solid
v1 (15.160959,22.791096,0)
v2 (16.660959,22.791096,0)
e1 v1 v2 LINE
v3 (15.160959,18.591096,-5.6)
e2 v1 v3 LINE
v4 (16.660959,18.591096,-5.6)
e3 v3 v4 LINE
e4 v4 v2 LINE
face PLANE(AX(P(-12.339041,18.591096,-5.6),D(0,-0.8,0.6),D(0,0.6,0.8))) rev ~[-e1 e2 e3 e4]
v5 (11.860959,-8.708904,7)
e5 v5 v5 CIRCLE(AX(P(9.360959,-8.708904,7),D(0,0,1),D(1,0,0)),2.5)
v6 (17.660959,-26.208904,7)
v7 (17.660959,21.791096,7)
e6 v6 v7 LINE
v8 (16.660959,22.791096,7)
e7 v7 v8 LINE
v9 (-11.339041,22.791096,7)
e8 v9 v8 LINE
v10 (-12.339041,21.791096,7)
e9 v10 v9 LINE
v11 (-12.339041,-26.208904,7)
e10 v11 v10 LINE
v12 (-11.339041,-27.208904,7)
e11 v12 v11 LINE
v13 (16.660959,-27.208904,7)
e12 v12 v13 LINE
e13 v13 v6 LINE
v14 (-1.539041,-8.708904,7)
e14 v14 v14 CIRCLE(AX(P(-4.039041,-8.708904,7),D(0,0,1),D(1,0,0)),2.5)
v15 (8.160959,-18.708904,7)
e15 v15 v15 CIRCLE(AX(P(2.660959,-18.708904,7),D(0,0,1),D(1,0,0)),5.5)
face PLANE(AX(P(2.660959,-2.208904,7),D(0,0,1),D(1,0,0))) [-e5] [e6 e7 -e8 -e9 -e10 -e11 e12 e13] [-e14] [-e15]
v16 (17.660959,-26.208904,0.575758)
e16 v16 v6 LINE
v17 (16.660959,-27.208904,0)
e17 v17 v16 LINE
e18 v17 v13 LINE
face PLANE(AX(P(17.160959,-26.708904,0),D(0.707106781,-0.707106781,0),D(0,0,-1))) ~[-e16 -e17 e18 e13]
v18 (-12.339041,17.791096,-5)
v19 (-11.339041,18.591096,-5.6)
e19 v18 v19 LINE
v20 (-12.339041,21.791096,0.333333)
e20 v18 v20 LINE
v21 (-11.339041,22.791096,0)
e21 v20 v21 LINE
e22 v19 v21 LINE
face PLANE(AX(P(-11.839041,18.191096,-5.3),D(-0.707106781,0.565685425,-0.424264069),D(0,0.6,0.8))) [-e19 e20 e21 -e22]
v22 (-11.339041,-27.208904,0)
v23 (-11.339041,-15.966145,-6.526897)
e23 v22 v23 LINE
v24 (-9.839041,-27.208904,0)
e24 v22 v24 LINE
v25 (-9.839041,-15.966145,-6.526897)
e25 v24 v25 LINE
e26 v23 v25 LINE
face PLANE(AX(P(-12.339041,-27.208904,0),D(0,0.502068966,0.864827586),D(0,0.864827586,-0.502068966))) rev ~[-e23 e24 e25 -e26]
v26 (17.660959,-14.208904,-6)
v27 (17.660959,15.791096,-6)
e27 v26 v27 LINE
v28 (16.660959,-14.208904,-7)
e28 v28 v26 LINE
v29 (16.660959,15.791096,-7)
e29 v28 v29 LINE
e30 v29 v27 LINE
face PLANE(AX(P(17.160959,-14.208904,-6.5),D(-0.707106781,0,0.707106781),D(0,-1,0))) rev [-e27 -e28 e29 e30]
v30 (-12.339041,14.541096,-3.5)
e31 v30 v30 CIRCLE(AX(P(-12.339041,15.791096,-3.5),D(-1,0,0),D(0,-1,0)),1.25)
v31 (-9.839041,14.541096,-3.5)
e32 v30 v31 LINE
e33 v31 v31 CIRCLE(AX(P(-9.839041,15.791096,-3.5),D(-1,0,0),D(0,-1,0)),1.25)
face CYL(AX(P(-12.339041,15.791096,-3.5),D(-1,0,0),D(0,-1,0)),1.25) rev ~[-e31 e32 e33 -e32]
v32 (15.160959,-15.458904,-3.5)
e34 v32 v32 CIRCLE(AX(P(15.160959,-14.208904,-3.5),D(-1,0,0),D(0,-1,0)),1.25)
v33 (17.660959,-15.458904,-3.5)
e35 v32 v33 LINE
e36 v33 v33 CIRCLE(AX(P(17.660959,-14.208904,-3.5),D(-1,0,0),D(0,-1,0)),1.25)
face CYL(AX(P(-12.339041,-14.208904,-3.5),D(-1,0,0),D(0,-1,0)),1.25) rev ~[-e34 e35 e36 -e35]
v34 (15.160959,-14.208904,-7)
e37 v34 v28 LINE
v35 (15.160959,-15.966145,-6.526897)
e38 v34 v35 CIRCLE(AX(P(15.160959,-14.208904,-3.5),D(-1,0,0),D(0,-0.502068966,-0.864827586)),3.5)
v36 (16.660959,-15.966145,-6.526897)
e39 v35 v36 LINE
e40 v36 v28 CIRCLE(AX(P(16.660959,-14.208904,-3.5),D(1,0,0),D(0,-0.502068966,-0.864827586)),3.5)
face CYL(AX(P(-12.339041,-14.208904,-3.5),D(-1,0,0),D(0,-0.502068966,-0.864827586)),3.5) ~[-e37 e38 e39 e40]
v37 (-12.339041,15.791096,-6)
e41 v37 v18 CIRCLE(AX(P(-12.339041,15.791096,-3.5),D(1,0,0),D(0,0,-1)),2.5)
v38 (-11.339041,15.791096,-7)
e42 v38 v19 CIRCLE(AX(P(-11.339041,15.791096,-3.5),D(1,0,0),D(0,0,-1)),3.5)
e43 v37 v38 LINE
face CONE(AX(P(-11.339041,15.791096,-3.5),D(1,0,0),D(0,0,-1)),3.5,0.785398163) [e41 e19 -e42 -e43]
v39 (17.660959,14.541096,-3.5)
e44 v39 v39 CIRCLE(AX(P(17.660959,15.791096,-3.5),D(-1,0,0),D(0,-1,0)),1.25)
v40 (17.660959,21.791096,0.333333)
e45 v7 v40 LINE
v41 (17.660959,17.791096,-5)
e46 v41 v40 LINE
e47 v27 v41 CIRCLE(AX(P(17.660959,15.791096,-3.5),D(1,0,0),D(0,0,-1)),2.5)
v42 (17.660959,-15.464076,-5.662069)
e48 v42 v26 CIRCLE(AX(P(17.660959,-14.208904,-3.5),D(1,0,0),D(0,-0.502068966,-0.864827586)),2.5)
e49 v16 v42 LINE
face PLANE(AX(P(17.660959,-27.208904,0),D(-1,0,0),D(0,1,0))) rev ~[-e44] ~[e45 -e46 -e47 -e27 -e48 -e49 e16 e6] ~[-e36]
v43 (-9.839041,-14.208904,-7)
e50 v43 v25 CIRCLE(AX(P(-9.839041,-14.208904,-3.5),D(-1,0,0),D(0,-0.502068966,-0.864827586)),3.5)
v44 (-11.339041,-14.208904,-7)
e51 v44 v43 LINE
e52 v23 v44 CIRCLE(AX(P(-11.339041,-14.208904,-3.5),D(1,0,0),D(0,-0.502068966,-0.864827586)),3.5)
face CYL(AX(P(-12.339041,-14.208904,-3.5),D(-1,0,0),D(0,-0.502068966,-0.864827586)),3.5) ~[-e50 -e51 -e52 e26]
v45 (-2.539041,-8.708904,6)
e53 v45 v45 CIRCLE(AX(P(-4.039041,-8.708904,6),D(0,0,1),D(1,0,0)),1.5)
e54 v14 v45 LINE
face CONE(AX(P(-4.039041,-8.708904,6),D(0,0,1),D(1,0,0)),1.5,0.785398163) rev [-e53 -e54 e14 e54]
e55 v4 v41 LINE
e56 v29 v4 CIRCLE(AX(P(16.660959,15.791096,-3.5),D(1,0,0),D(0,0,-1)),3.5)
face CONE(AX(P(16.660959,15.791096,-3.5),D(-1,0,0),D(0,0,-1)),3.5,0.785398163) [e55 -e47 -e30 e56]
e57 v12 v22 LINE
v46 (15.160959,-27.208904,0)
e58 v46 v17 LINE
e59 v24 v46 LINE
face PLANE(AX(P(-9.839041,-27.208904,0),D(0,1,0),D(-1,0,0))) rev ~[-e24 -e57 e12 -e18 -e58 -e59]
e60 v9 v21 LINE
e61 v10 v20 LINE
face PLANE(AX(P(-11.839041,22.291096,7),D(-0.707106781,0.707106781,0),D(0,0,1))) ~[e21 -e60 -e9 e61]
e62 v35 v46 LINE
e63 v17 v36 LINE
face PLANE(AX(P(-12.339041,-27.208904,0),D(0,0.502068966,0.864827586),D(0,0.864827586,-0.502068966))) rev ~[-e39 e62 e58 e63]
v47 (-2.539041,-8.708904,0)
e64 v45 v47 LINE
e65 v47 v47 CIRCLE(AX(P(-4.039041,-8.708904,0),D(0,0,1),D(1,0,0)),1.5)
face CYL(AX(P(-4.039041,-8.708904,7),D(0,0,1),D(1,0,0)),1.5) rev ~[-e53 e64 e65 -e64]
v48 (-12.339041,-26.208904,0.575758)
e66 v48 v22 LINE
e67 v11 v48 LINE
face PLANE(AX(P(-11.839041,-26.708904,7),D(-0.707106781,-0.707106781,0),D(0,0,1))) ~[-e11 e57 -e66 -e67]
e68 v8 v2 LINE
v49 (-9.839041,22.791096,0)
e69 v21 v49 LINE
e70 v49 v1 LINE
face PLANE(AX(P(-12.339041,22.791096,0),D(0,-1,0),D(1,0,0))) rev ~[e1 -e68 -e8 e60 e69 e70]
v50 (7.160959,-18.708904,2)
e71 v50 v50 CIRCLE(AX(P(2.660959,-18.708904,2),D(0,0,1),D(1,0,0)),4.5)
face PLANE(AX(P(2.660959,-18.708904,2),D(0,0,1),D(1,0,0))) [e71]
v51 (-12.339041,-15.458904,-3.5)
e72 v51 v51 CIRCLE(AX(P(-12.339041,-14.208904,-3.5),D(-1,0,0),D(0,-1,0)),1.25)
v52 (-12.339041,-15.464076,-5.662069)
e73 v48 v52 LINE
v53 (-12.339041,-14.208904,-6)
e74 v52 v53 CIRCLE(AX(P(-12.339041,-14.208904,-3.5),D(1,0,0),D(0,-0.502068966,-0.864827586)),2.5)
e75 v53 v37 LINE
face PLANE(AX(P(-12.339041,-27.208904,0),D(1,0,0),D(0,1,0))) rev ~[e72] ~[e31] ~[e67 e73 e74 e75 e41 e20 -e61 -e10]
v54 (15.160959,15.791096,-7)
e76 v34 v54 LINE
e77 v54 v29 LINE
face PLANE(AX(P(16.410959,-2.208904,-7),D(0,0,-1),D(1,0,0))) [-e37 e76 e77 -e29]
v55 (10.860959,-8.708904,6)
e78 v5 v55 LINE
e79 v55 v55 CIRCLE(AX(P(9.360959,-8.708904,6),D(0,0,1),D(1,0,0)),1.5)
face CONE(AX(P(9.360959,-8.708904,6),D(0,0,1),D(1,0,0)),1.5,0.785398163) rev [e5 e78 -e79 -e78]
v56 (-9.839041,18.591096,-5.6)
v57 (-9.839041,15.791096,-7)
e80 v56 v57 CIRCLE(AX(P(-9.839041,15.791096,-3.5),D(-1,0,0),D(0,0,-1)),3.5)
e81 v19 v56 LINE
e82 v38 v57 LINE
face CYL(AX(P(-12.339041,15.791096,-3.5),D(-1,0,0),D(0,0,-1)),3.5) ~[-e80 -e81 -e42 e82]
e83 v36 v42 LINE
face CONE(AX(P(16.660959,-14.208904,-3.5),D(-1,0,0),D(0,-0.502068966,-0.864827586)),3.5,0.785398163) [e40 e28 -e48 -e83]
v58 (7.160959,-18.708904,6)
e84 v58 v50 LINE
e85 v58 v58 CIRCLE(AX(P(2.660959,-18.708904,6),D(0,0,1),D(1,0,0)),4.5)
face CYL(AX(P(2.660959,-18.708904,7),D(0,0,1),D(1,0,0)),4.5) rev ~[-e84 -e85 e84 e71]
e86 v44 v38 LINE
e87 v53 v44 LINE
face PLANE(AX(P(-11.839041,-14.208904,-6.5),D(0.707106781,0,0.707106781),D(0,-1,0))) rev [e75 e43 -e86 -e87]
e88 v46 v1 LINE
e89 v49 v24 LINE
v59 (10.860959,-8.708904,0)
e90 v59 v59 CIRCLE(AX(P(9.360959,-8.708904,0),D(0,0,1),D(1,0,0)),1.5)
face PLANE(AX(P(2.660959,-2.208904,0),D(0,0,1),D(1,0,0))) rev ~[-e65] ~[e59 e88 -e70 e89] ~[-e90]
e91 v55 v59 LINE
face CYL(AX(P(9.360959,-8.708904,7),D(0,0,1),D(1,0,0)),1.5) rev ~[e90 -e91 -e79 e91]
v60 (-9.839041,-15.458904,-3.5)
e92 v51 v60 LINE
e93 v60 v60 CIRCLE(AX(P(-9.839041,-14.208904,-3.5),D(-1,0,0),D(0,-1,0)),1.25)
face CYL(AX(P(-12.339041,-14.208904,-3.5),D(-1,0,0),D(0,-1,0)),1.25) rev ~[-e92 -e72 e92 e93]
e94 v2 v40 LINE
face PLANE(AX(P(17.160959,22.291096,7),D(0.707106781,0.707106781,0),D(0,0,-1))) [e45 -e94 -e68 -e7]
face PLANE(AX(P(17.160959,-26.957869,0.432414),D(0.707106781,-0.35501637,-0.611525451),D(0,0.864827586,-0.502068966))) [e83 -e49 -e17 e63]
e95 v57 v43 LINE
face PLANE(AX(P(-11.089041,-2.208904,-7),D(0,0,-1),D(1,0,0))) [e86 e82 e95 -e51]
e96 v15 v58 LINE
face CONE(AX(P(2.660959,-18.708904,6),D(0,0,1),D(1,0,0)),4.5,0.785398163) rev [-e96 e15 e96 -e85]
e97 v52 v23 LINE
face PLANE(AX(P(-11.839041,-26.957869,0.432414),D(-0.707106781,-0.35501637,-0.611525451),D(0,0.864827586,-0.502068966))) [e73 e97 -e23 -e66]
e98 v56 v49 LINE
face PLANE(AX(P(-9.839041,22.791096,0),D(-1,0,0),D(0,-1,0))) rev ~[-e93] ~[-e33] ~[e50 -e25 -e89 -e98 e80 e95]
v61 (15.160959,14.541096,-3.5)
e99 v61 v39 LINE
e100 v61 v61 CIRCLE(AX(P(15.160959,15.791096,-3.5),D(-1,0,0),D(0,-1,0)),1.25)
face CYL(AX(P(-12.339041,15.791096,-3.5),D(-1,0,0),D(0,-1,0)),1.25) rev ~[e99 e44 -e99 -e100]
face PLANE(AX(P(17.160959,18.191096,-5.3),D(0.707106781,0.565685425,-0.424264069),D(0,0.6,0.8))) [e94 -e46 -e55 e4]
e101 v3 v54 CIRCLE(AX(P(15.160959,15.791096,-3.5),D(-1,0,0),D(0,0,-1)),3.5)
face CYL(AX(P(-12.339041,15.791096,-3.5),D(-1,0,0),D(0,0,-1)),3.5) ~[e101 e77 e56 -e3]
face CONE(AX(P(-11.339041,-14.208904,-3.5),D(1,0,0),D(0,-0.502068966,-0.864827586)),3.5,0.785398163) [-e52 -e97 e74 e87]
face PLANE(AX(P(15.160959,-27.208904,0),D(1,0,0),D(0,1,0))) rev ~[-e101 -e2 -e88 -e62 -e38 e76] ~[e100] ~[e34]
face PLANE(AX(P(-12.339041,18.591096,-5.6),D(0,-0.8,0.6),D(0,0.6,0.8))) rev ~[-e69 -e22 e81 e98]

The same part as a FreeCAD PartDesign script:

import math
import FreeCAD as App
import Part
import Sketcher
from FreeCAD import Vector


def edges_at(feature, points):
    """Names of the edges that pass closest to the given points."""
    edges = feature.Shape.Edges
    near = lambda p: min(range(len(edges)), key=lambda i: edges[i].distToShape(Part.Vertex(*p))[0])
    return sorted({f"Edge{near(p) + 1}" for p in points})


def add_polygon(sketch, points):
    """Adds a closed chain of lines whose ends are joined by coincident constraints."""
    first, n = sketch.GeometryCount, len(points)
    for a, b in zip(points, points[1:] + points[:1]):
        sketch.addGeometry(Part.LineSegment(App.Vector(*a, 0), App.Vector(*b, 0)), False)
    for i in range(n):
        sketch.addConstraint(Sketcher.Constraint("Coincident", first + i, 2, first + (i + 1) % n, 1))

doc = App.newDocument("Part")
body = doc.addObject("PartDesign::Body", "Body")

# Sketch on XY plane
sketch1 = body.newObject("Sketcher::SketchObject", "Sketch")
sketch1.AttachmentSupport = (doc.getObject("XY_Plane"), [""])
sketch1.MapMode = "FlatFace"
add_polygon(sketch1, [(-12, 23), (-12, -27), (18, -27), (18, 23)])  # lines 0-3
sketch1.addConstraint([
    Sketcher.Constraint("Vertical", 0),
    Sketcher.Constraint("Horizontal", 1),
    Sketcher.Constraint("Vertical", 2),
    Sketcher.Constraint("Horizontal", 3),
    Sketcher.Constraint("DistanceX", 1, 1, 1, 2, 30.0),
    Sketcher.Constraint("DistanceY", 0, 2, 0, 1, 50.0),
    Sketcher.Constraint("DistanceX", 0, 2, -1, 1, 12.339041),
    Sketcher.Constraint("DistanceY", 0, 2, -1, 1, 27.208904),
])
pad1 = body.newObject("PartDesign::Pad", "Pad")
pad1.Profile = sketch1
pad1.Length = 7

# Sketch on XY plane
sketch2 = body.newObject("Sketcher::SketchObject", "Sketch001")
sketch2.AttachmentSupport = (doc.getObject("XY_Plane"), [""])
sketch2.MapMode = "FlatFace"
sketch2.AttachmentOffset = App.Placement(Vector(0, 0, 7), App.Rotation())
sketch2.addGeometry(Part.Circle(Vector(2.7, -18.7, 0), Vector(0, 0, 1), 4.5), False)
sketch2.addConstraint([
    Sketcher.Constraint("Diameter", 0, 9.0),
    Sketcher.Constraint("DistanceX", -1, 1, 0, 3, 2.660959),
    Sketcher.Constraint("DistanceY", 0, 3, -1, 1, 18.708904),
])
pocket1 = body.newObject("PartDesign::Pocket", "Pocket")
pocket1.Profile = sketch2
pocket1.Length = 5

# Sketch on XY plane
sketch3 = body.newObject("Sketcher::SketchObject", "Sketch002")
sketch3.AttachmentSupport = (doc.getObject("XY_Plane"), [""])
sketch3.MapMode = "FlatFace"
sketch3.AttachmentOffset = App.Placement(Vector(0, 0, 7), App.Rotation())
sketch3.addGeometry([
    Part.Circle(Vector(9.4, -8.7, 0), Vector(0, 0, 1), 1.5),
    Part.Circle(Vector(-4, -8.7, 0), Vector(0, 0, 1), 1.5),
], False)
sketch3.addConstraint([
    Sketcher.Constraint("Equal", 0, 1),
    Sketcher.Constraint("Horizontal", 0, 3, 1, 3),
    Sketcher.Constraint("Diameter", 0, 3.0),
    Sketcher.Constraint("DistanceX", 1, 3, 0, 3, 13.4),
    Sketcher.Constraint("DistanceX", -1, 1, 0, 3, 9.360959),
    Sketcher.Constraint("DistanceY", 0, 3, -1, 1, 8.708904),
])
pocket2 = body.newObject("PartDesign::Pocket", "Pocket001")
pocket2.Profile = sketch3
pocket2.Type = "ThroughAll"

# Sketch on XY plane
sketch4 = body.newObject("Sketcher::SketchObject", "Sketch003")
sketch4.AttachmentSupport = (doc.getObject("XY_Plane"), [""])
sketch4.MapMode = "FlatFace"
add_polygon(sketch4, [(-9.8, -27.2), (-12.3, -27.2), (-12.3, 22.8), (-9.8, 22.8)])  # lines 0-3
add_polygon(sketch4, [(17.7, -27.2), (15.2, -27.2), (15.2, 22.8), (17.7, 22.8)])  # lines 4-7
sketch4.addConstraint([
    Sketcher.Constraint("Horizontal", 0),
    Sketcher.Constraint("Vertical", 1),
    Sketcher.Constraint("Horizontal", 2),
    Sketcher.Constraint("Vertical", 3),
    Sketcher.Constraint("Horizontal", 4),
    Sketcher.Constraint("Vertical", 5),
    Sketcher.Constraint("Horizontal", 6),
    Sketcher.Constraint("Vertical", 7),
    Sketcher.Constraint("Horizontal", 3, 2, 4, 2),
    Sketcher.Constraint("Horizontal", 2, 2, 5, 2),
    Sketcher.Constraint("Equal", 2, 4),
    Sketcher.Constraint("DistanceY", 1, 1, 1, 2, 50.0),
    Sketcher.Constraint("DistanceX", 0, 2, 0, 1, 2.5),
    Sketcher.Constraint("DistanceX", 3, 2, 4, 2, 25.0),
    Sketcher.Constraint("DistanceX", 0, 2, -1, 1, 12.339041),
    Sketcher.Constraint("DistanceY", 0, 2, -1, 1, 27.208904),
])
pad2 = body.newObject("PartDesign::Pad", "Pad001")
pad2.Profile = sketch4
pad2.Length = 7
pad2.Reversed = True

# Sketch on YZ plane
sketch5 = body.newObject("Sketcher::SketchObject", "Sketch004")
sketch5.AttachmentSupport = (doc.getObject("YZ_Plane"), [""])
sketch5.MapMode = "FlatFace"
sketch5.AttachmentOffset = App.Placement(Vector(0, 0, -12.339041), App.Rotation())
sketch5.addGeometry([
    Part.ArcOfCircle(Part.Circle(Vector(15.8, -3.5, 0), Vector(0, 0, 1), 3.5), math.radians(-90), math.radians(-37)),  # 0
    Part.LineSegment(Vector(18.6, -5.6, 0), Vector(22.8, 0, 0)),  # 1
    Part.LineSegment(Vector(22.8, 0, 0), Vector(22.8, -7, 0)),  # 2
    Part.LineSegment(Vector(22.8, -7, 0), Vector(15.8, -7, 0)),  # 3
    Part.ArcOfCircle(Part.Circle(Vector(-14.2, -3.5, 0), Vector(0, 0, 1), 3.5), math.radians(-120), math.radians(-90)),  # 4
    Part.LineSegment(Vector(-14.2, -7, 0), Vector(-27.2, -7, 0)),  # 5
    Part.LineSegment(Vector(-27.2, -7, 0), Vector(-27.2, 0, 0)),  # 6
    Part.LineSegment(Vector(-27.2, 0, 0), Vector(-16, -6.5, 0)),  # 7
    Part.Circle(Vector(-14.2, -3.5, 0), Vector(0, 0, 1), 1.2),  # 8
    Part.Circle(Vector(15.8, -3.5, 0), Vector(0, 0, 1), 1.2),  # 9
], False)
sketch5.addConstraint([
    Sketcher.Constraint("Tangent", 0, 2, 1, 1),
    Sketcher.Constraint("Coincident", 1, 2, 2, 1),
    Sketcher.Constraint("Coincident", 2, 2, 3, 1),
    Sketcher.Constraint("Tangent", 3, 2, 0, 1),
    Sketcher.Constraint("Tangent", 4, 2, 5, 1),
    Sketcher.Constraint("Coincident", 5, 2, 6, 1),
    Sketcher.Constraint("Coincident", 6, 2, 7, 1),
    Sketcher.Constraint("Tangent", 7, 2, 4, 1),
    Sketcher.Constraint("Vertical", 2),
    Sketcher.Constraint("Horizontal", 3),
    Sketcher.Constraint("Horizontal", 5),
    Sketcher.Constraint("Vertical", 6),
    Sketcher.Constraint("Coincident", 8, 3, 4, 3),
    Sketcher.Constraint("Coincident", 9, 3, 0, 3),
    Sketcher.Constraint("Equal", 0, 4),
    Sketcher.Constraint("Equal", 8, 9),
    Sketcher.Constraint("PointOnObject", 1, 2, -1),
    Sketcher.Constraint("PointOnObject", 6, 2, -1),
    Sketcher.Constraint("Horizontal", 0, 3, 4, 3),
    Sketcher.Constraint("Equal", 3, 2),
    Sketcher.Constraint("Diameter", 8, 2.5),
    Sketcher.Constraint("Radius", 0, 3.5),
    Sketcher.Constraint("DistanceX", 3, 2, 3, 1, 7.0),
    Sketcher.Constraint("DistanceX", 5, 2, 5, 1, 13.0),
    Sketcher.Constraint("DistanceX", 4, 3, 0, 3, 30.0),
    Sketcher.Constraint("DistanceX", -1, 1, 0, 3, 15.791096),
])
pocket3 = body.newObject("PartDesign::Pocket", "Pocket002")
pocket3.Profile = sketch5
pocket3.Type = "ThroughAll"
pocket3.Reversed = True
doc.recompute()

chamfer = body.newObject("PartDesign::Chamfer", "Chamfer")
chamfer.Base = (pocket3, edges_at(pocket3, [
    (-12.339, 22.791, 3.5),
    (-12.339, 20.691, -2.8),
    (-12.339, -27.209, 3.5),
    (17.661, -27.209, 3.5),
    (17.661, -21.588, -3.263),
    (17.661, 22.791, 3.5),
    (-1.839, -18.709, 7),
    (-5.539, -8.709, 7),
    (7.861, -8.709, 7),
]))
chamfer.Size = 1

doc.recompute()
